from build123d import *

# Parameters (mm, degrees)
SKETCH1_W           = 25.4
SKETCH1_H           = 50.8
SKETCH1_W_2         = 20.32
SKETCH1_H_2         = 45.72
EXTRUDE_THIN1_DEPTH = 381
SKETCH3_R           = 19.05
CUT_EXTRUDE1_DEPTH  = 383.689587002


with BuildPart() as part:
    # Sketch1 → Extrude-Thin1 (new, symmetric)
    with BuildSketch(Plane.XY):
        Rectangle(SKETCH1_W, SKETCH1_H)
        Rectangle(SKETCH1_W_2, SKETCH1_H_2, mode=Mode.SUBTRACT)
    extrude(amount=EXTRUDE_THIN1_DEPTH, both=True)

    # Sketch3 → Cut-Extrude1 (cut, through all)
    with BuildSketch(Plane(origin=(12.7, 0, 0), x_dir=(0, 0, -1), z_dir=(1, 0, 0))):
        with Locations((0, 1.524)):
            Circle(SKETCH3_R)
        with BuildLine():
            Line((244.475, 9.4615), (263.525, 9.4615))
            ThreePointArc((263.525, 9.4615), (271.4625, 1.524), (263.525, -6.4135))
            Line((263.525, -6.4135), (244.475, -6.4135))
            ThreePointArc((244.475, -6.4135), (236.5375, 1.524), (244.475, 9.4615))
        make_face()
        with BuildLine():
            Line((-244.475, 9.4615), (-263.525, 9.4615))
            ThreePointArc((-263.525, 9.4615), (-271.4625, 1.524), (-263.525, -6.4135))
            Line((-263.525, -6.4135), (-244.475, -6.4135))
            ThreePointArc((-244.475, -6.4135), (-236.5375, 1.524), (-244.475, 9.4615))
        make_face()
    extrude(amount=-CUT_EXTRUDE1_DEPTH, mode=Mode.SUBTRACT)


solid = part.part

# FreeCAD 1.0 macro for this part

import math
import FreeCAD as App
import Part
import Sketcher
from FreeCAD import Vector
Q = App.Units.Quantity


def add_polygon(sketch, points):
    """Adds a closed chain of lines whose ends are joined by coincident constraints."""
    first, n = sketch.GeometryCount, len(points)
    for a, b in zip(points, points[1:] + points[:1]):
        sketch.addGeometry(Part.LineSegment(App.Vector(*a, 0), App.Vector(*b, 0)), False)
    for i in range(n):
        sketch.addConstraint(Sketcher.Constraint("Coincident", first + i, 2, first + (i + 1) % n, 1))

doc = App.newDocument("Part")
body = doc.addObject("PartDesign::Body", "Body")

# Sketch on XY plane
sketch1 = body.newObject("Sketcher::SketchObject", "Sketch")
sketch1.AttachmentSupport = (doc.getObject("XY_Plane"), [""])
sketch1.MapMode = "FlatFace"
add_polygon(sketch1, [(-13, 25), (-13, -25), (13, -25), (13, 25)])  # lines 0-3
add_polygon(sketch1, [(10, -23), (-10, -23), (-10, 23), (10, 23)])  # lines 4-7
sketch1.addConstraint([
    Sketcher.Constraint("Vertical", 0),
    Sketcher.Constraint("Horizontal", 1),
    Sketcher.Constraint("Vertical", 2),
    Sketcher.Constraint("Horizontal", 3),
    Sketcher.Constraint("Horizontal", 4),
    Sketcher.Constraint("Vertical", 5),
    Sketcher.Constraint("Horizontal", 6),
    Sketcher.Constraint("Vertical", 7),
    Sketcher.Constraint("Symmetric", 0, 2, 2, 2, -1, 1),
    Sketcher.Constraint("Symmetric", 4, 2, 6, 2, -1, 1),
    Sketcher.Constraint("DistanceX", 1, 1, 1, 2, Q("1 in")),
    Sketcher.Constraint("DistanceY", 0, 2, 0, 1, Q("2 in")),
    Sketcher.Constraint("DistanceX", 4, 2, 4, 1, Q("0.8 in")),
    Sketcher.Constraint("DistanceY", 5, 1, 5, 2, Q("1.8 in")),
])
pad1 = body.newObject("PartDesign::Pad", "Pad")
pad1.Profile = sketch1
pad1.Length = Q("30 in")
pad1.Midplane = True

# Sketch on YZ plane
sketch2 = body.newObject("Sketcher::SketchObject", "Sketch001")
sketch2.AttachmentSupport = (doc.getObject("YZ_Plane"), [""])
sketch2.MapMode = "FlatFace"
sketch2.AttachmentOffset = App.Placement(Vector(0, 0, 0.5 * 25.4), App.Rotation())
sketch2.addGeometry([
    Part.Circle(Vector(2, 0, 0), Vector(0, 0, 1), 19),  # 0
    Part.LineSegment(Vector(9, -264, 0), Vector(9, -244, 0)),  # 1
    Part.ArcOfCircle(Part.Circle(Vector(2, -244, 0), Vector(0, 0, 1), 8), math.radians(0), math.radians(180)),  # 2
    Part.LineSegment(Vector(-6, -244, 0), Vector(-6, -264, 0)),  # 3
    Part.ArcOfCircle(Part.Circle(Vector(2, -264, 0), Vector(0, 0, 1), 8), math.radians(180), math.radians(360)),  # 4
    Part.LineSegment(Vector(9, 244, 0), Vector(9, 264, 0)),  # 5
    Part.ArcOfCircle(Part.Circle(Vector(2, 264, 0), Vector(0, 0, 1), 8), math.radians(0), math.radians(180)),  # 6
    Part.LineSegment(Vector(-6, 264, 0), Vector(-6, 244, 0)),  # 7
    Part.ArcOfCircle(Part.Circle(Vector(2, 244, 0), Vector(0, 0, 1), 8), math.radians(180), math.radians(360)),  # 8
], False)
sketch2.addConstraint([
    Sketcher.Constraint("Tangent", 1, 2, 2, 1),
    Sketcher.Constraint("Tangent", 2, 2, 3, 1),
    Sketcher.Constraint("Tangent", 3, 2, 4, 1),
    Sketcher.Constraint("Tangent", 4, 2, 1, 1),
    Sketcher.Constraint("Tangent", 5, 2, 6, 1),
    Sketcher.Constraint("Tangent", 6, 2, 7, 1),
    Sketcher.Constraint("Tangent", 7, 2, 8, 1),
    Sketcher.Constraint("Tangent", 8, 2, 5, 1),
    Sketcher.Constraint("Vertical", 1),
    Sketcher.Constraint("Vertical", 3),
    Sketcher.Constraint("Vertical", 5),
    Sketcher.Constraint("Vertical", 7),
    Sketcher.Constraint("Equal", 4, 6),
    Sketcher.Constraint("Symmetric", 4, 3, 6, 3, -1),
    Sketcher.Constraint("PointOnObject", 0, 3, -1),
    Sketcher.Constraint("Vertical", 0, 3, 2, 3),
    Sketcher.Constraint("Equal", 3, 5),
    Sketcher.Constraint("Diameter", 0, Q("1.5 in")),
    Sketcher.Constraint("Radius", 2, Q("0.3125 in")),
    Sketcher.Constraint("DistanceY", 2, 3, 6, 3, Q("20 in")),
    Sketcher.Constraint("DistanceY", 1, 1, 1, 2, Q("0.75 in")),
    Sketcher.Constraint("DistanceX", -1, 1, 0, 3, Q("0.06 in")),
])
pocket1 = body.newObject("PartDesign::Pocket", "Pocket")
pocket1.Profile = sketch2
pocket1.Type = "ThroughAll"

doc.recompute()
